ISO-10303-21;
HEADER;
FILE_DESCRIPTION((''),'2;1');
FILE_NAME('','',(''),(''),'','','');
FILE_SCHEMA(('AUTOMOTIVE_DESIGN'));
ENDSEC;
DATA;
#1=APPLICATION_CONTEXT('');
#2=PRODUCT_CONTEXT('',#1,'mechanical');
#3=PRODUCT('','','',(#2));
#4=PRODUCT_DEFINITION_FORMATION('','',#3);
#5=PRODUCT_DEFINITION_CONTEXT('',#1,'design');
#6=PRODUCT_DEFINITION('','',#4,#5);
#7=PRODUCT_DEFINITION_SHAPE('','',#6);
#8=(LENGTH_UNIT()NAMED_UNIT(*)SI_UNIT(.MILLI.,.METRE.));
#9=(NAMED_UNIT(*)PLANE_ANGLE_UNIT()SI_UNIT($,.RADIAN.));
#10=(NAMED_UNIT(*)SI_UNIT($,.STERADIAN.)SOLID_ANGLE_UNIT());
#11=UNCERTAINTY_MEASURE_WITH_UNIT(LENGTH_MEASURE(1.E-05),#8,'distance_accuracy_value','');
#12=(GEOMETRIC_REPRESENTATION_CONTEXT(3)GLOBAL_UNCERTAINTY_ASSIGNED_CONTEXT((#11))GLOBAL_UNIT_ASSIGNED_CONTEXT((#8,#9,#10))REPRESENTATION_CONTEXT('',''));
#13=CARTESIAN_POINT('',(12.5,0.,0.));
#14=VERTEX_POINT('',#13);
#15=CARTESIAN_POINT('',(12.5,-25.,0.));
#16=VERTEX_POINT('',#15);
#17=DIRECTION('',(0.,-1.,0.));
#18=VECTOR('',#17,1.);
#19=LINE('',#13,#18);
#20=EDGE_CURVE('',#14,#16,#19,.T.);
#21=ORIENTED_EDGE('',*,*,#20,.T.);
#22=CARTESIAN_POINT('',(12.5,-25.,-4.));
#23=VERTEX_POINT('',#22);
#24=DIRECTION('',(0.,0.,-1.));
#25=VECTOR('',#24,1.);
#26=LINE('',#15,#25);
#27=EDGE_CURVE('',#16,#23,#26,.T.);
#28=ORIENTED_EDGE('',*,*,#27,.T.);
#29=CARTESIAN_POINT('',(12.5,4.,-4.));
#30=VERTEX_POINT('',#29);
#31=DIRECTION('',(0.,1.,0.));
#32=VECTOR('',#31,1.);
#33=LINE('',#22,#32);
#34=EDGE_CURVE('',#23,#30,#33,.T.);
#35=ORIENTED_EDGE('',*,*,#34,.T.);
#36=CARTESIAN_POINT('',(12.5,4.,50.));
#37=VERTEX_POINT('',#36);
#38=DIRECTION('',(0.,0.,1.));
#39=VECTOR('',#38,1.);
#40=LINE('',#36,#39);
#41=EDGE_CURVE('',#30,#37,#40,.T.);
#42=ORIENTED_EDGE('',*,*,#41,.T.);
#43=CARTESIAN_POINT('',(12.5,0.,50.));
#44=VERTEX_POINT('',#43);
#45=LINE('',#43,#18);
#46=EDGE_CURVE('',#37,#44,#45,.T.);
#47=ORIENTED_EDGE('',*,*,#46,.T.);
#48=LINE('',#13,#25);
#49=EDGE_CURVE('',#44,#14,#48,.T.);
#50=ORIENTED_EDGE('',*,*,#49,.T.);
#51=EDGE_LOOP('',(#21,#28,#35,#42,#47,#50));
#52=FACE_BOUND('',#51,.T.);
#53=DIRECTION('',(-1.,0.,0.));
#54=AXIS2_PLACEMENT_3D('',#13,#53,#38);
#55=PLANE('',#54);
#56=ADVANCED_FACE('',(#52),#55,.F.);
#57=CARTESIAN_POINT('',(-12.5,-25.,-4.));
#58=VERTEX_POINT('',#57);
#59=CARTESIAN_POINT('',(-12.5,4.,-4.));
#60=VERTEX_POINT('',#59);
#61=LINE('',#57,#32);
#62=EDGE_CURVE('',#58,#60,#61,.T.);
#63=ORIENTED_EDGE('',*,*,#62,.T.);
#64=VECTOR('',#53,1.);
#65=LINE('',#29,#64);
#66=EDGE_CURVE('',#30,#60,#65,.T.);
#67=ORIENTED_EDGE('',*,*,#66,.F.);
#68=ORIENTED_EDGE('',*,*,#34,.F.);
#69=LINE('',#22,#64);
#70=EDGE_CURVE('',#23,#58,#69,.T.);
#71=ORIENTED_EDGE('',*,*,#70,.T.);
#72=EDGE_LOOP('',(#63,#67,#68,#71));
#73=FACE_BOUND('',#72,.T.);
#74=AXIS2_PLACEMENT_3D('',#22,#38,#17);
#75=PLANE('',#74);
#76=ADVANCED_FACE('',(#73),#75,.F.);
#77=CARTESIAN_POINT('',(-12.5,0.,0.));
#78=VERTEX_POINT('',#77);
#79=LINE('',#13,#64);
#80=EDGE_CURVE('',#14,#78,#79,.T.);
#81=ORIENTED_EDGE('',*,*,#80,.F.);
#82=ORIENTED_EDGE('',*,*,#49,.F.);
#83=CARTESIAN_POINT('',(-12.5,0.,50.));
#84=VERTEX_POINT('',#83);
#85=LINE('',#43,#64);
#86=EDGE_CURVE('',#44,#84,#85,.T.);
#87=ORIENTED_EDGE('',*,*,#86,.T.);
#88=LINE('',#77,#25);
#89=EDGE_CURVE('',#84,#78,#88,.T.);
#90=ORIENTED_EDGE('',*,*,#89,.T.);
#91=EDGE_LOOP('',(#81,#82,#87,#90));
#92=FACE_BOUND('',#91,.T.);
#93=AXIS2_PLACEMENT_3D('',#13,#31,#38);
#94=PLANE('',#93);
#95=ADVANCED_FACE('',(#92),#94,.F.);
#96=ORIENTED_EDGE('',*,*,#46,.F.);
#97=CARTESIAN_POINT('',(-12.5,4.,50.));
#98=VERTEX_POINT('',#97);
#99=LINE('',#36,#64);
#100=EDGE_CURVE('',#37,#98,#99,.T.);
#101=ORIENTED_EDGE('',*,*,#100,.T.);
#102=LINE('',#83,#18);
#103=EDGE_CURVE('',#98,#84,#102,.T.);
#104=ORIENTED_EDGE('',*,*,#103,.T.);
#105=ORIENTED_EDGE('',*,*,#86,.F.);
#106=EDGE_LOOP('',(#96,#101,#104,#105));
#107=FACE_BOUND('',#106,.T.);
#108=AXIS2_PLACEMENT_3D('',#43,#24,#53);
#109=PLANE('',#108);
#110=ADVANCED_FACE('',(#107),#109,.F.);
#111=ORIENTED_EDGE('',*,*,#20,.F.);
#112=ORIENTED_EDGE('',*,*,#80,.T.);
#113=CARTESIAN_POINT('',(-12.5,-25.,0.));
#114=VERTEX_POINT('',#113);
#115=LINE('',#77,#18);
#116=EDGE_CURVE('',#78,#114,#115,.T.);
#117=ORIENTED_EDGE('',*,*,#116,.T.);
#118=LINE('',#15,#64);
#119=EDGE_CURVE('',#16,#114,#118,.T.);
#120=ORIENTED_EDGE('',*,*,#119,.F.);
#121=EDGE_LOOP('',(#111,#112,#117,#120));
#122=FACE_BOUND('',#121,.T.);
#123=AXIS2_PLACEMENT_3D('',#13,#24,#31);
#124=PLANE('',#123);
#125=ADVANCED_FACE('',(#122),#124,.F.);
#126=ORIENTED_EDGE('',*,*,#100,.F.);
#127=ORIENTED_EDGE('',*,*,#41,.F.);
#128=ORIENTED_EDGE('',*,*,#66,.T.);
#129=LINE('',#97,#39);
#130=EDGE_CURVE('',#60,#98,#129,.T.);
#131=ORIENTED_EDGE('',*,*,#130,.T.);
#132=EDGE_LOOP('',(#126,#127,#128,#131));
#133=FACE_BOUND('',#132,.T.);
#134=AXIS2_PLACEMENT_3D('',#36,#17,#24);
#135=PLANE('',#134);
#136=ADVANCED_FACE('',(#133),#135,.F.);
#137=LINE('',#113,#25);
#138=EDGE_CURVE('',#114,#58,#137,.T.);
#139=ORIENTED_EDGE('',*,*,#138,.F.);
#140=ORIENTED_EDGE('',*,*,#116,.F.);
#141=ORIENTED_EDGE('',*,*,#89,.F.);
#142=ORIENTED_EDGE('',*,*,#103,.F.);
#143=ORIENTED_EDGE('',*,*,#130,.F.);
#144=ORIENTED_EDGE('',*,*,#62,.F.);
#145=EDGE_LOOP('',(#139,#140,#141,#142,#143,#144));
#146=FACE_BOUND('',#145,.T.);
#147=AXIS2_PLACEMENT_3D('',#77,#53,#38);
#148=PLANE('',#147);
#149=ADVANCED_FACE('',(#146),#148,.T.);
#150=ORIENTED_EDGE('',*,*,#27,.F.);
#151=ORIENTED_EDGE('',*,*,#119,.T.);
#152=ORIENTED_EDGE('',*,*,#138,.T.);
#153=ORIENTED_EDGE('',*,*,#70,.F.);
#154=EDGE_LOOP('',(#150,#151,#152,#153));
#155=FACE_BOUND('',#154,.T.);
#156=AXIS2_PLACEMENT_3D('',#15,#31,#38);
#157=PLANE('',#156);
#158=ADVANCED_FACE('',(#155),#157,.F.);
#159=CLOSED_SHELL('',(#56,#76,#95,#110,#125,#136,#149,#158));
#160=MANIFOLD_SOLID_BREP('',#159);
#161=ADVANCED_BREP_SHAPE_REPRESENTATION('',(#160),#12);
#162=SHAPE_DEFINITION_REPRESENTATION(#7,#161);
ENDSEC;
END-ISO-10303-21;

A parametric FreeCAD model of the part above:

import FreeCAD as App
import Part
import Sketcher

V = App.Vector
Q = App.Units.Quantity

doc = App.newDocument("Part")
body = doc.addObject("PartDesign::Body", "Body")

sketch1 = doc.addObject("Sketcher::SketchObject", "Sketch")
body.addObject(sketch1)
sketch1.AttachmentSupport = (doc.YZ_Plane, [""])
sketch1.MapMode = "FlatFace"
sketch1.addGeometry(Part.LineSegment(V(0, 0, 0), V(-25, 0, 0)), False)
sketch1.addGeometry(Part.LineSegment(V(-25, 0, 0), V(-25, -4, 0)), False)
sketch1.addGeometry(Part.LineSegment(V(-25, -4, 0), V(4, -4, 0)), False)
sketch1.addGeometry(Part.LineSegment(V(4, -4, 0), V(4, 50, 0)), False)
sketch1.addGeometry(Part.LineSegment(V(4, 50, 0), V(0, 50, 0)), False)
sketch1.addGeometry(Part.LineSegment(V(0, 50, 0), V(0, 0, 0)), False)
sketch1.addConstraint(Sketcher.Constraint("Coincident", 0, 2, 1, 1))
sketch1.addConstraint(Sketcher.Constraint("Coincident", 1, 2, 2, 1))
sketch1.addConstraint(Sketcher.Constraint("Coincident", 2, 2, 3, 1))
sketch1.addConstraint(Sketcher.Constraint("Coincident", 3, 2, 4, 1))
sketch1.addConstraint(Sketcher.Constraint("Coincident", 4, 2, 5, 1))
sketch1.addConstraint(Sketcher.Constraint("Coincident", 5, 2, 0, 1))
sketch1.addConstraint(Sketcher.Constraint("Horizontal", 0))
sketch1.addConstraint(Sketcher.Constraint("Vertical", 1))
sketch1.addConstraint(Sketcher.Constraint("Horizontal", 2))
sketch1.addConstraint(Sketcher.Constraint("Vertical", 3))
sketch1.addConstraint(Sketcher.Constraint("Horizontal", 4))
sketch1.addConstraint(Sketcher.Constraint("Vertical", 5))
sketch1.addConstraint(Sketcher.Constraint("Coincident", 5, 2, -1, 1))
sketch1.addConstraint(Sketcher.Constraint("Equal", 4, 1))
sketch1.addConstraint(Sketcher.Constraint("DistanceX", 0, 2, 0, 1, Q("25 mm")))
sketch1.addConstraint(Sketcher.Constraint("DistanceX", 2, 1, 2, 2, Q("29 mm")))
sketch1.addConstraint(Sketcher.Constraint("DistanceY", 3, 1, 3, 2, Q("54 mm")))
pad1 = doc.addObject("PartDesign::Pad", "Pad")
body.addObject(pad1)
pad1.Profile = sketch1
pad1.Length = 25
pad1.Midplane = True

doc.recompute()
